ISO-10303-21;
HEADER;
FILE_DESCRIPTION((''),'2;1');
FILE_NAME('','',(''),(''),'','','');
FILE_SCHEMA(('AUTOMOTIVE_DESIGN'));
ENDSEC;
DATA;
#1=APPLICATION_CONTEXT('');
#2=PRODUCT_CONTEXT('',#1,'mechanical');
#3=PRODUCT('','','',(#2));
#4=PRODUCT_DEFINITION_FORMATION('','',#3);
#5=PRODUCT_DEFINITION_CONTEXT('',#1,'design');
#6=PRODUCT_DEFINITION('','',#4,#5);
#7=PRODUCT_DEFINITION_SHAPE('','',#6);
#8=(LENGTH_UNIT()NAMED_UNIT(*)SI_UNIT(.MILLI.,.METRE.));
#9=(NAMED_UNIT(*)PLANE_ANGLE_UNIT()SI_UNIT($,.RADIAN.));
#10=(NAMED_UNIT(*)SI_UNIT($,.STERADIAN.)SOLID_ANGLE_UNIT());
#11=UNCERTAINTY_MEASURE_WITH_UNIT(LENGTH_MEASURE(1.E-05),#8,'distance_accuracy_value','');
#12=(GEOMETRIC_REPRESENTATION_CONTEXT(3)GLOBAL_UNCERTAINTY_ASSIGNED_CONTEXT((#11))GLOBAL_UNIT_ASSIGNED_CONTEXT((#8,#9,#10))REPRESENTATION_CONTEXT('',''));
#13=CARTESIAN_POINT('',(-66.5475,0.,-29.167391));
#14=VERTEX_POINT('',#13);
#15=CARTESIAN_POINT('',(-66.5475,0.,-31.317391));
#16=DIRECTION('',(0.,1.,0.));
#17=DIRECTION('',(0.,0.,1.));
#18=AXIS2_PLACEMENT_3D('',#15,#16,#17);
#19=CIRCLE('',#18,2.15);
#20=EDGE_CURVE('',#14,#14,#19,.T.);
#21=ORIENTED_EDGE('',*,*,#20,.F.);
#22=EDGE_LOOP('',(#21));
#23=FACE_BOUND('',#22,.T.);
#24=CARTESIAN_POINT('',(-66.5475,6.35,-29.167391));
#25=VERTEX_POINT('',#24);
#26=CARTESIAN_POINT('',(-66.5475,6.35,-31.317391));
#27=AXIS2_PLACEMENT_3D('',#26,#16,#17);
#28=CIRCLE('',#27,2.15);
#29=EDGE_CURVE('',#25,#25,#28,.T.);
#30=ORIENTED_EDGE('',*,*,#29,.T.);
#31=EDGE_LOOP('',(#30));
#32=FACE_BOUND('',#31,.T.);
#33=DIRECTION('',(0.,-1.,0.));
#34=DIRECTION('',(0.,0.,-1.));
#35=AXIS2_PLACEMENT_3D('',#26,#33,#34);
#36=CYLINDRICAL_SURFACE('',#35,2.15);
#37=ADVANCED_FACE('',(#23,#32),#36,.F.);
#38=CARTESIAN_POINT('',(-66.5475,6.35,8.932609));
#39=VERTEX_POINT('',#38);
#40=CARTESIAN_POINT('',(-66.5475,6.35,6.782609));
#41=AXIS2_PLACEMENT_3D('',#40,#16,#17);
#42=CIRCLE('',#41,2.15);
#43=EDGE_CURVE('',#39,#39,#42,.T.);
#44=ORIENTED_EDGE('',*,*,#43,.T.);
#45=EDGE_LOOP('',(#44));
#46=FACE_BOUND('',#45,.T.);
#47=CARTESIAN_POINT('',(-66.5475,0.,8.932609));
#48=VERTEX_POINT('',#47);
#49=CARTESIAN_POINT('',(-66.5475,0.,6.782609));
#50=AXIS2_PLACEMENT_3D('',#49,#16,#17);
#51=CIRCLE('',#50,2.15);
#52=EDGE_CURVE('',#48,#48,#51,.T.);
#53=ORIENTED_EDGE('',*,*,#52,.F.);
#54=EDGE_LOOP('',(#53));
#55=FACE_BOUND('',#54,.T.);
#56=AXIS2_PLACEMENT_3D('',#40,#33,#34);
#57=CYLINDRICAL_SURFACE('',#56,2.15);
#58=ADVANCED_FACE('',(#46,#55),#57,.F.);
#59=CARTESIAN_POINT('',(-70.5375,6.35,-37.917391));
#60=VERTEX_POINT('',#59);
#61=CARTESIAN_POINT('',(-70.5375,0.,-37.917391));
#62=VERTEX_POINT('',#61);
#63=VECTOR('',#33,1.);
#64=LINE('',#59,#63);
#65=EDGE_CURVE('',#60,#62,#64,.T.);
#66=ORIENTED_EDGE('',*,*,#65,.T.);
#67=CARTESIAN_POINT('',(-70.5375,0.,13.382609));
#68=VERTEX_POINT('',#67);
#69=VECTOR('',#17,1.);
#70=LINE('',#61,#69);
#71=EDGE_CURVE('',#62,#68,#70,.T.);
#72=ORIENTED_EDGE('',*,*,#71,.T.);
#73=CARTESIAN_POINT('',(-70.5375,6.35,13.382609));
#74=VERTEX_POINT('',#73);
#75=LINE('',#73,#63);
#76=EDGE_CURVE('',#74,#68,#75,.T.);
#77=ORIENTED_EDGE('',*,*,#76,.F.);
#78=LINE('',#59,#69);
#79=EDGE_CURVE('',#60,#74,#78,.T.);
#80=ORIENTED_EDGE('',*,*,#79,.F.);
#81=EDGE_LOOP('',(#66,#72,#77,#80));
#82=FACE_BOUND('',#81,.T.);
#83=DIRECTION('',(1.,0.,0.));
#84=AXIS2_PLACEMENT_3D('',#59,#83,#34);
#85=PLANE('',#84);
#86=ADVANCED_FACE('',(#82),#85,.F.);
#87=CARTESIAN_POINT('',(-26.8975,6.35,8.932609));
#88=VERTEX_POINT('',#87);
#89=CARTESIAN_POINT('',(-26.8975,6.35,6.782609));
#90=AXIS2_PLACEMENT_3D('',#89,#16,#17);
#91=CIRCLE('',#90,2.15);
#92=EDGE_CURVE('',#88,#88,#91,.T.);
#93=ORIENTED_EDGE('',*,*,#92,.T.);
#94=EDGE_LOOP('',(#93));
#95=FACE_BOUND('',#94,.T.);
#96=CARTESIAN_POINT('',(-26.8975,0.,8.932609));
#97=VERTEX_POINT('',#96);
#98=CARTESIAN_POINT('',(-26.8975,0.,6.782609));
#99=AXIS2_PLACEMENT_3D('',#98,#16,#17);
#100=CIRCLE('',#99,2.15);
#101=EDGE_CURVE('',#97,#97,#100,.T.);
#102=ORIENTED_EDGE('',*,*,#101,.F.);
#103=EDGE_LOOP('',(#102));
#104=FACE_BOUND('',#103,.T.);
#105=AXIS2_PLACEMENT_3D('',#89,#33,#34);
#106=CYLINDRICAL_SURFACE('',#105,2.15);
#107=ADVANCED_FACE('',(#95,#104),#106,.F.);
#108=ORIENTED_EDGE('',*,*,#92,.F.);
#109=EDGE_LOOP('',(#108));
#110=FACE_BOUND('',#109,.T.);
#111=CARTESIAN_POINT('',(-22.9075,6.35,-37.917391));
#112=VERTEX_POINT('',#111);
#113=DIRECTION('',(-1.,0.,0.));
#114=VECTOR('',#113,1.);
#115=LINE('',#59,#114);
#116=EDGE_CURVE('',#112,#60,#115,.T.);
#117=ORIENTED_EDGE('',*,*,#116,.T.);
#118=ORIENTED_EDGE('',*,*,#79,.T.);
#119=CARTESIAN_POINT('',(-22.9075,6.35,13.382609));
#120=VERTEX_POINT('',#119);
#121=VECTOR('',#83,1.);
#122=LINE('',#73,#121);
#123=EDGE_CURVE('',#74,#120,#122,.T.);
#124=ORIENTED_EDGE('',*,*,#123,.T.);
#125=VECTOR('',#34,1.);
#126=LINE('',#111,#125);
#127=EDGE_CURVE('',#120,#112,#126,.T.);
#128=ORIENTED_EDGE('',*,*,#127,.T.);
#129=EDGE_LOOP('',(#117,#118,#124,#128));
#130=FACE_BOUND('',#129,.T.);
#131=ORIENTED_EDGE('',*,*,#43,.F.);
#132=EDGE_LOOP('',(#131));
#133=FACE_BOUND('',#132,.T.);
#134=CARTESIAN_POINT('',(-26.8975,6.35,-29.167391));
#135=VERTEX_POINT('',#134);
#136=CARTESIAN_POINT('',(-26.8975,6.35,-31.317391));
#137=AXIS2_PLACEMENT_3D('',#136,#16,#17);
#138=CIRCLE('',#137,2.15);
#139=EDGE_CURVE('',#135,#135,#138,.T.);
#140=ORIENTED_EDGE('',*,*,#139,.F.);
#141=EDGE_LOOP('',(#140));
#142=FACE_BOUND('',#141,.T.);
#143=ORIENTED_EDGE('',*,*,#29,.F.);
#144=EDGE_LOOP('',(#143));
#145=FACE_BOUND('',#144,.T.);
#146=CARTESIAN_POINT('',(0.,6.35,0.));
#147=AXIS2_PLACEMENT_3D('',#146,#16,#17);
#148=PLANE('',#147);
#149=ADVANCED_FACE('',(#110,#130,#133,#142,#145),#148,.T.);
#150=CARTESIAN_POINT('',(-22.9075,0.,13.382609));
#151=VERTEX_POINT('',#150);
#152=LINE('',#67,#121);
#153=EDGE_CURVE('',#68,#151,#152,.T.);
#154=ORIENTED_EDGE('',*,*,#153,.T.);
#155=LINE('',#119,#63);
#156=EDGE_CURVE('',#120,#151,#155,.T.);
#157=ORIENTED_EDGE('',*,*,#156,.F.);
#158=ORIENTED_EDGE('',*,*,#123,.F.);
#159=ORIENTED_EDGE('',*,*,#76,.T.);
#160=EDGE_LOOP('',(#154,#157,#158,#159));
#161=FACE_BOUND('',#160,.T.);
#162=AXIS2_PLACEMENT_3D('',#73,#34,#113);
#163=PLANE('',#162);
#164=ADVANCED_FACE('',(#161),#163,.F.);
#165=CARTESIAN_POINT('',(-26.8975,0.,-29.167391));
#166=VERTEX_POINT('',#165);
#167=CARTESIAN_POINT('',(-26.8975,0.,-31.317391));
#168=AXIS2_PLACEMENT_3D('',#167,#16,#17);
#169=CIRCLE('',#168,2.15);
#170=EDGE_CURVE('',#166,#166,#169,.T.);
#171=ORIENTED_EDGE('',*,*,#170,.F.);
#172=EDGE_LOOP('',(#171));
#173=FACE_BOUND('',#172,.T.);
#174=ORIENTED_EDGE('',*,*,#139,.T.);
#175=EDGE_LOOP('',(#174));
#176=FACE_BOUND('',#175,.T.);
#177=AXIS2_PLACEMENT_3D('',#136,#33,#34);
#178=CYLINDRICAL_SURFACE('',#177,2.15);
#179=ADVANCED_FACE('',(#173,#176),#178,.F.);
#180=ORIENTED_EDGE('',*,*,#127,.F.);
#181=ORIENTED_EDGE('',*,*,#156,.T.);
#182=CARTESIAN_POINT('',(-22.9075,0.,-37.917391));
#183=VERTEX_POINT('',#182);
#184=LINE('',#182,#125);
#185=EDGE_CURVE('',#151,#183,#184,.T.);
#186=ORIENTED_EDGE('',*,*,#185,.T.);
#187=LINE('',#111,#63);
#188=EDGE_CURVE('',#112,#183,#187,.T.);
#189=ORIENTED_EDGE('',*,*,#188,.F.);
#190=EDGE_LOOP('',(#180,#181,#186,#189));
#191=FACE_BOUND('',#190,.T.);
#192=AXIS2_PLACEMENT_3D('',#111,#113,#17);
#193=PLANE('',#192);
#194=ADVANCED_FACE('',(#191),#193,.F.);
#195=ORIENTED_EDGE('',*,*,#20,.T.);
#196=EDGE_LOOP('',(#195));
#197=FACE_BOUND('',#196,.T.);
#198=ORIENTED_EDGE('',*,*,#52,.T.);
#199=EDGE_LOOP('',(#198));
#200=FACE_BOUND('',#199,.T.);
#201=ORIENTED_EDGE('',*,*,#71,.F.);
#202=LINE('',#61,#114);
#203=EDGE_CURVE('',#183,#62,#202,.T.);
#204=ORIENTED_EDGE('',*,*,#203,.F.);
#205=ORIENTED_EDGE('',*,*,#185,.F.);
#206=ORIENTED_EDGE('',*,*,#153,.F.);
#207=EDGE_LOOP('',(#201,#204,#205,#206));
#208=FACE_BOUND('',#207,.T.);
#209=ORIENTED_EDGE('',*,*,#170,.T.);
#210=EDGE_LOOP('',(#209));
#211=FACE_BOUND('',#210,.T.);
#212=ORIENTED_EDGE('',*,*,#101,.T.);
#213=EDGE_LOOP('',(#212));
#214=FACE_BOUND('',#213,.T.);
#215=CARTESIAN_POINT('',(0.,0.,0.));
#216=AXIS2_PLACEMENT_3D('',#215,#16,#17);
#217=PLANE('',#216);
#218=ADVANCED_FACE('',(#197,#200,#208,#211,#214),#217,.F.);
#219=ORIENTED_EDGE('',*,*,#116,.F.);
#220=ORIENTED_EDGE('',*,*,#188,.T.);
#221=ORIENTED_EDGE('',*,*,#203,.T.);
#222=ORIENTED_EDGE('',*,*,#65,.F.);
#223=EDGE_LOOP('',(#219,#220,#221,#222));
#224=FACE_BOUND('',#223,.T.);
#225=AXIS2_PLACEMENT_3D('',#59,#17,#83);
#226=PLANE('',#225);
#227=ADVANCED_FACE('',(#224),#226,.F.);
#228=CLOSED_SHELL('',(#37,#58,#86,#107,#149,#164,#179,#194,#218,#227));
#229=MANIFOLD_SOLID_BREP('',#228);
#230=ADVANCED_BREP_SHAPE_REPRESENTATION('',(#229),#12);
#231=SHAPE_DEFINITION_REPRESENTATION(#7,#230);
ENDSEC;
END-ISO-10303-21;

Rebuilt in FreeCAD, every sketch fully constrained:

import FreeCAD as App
import Part
import Sketcher


def add_polygon(sketch, points):
    """Adds a closed chain of lines whose ends are joined by coincident constraints."""
    first, n = sketch.GeometryCount, len(points)
    for a, b in zip(points, points[1:] + points[:1]):
        sketch.addGeometry(Part.LineSegment(App.Vector(*a, 0), App.Vector(*b, 0)), False)
    for i in range(n):
        sketch.addConstraint(Sketcher.Constraint("Coincident", first + i, 2, first + (i + 1) % n, 1))

doc = App.newDocument("Part")
body = doc.addObject("PartDesign::Body", "Body")

sketch1 = body.newObject("Sketcher::SketchObject", "Sketch")
sketch1.AttachmentSupport = (doc.getObject("XZ_Plane"), [""])
sketch1.MapMode = "FlatFace"
add_polygon(sketch1, [(-70.5375, -37.917391), (-70.5375, 13.382609), (-22.9075, 13.382609), (-22.9075, -37.917391)])
sketch1.addGeometry(Part.Circle(App.Vector(-66.5475, 6.782609, 0), App.Vector(0, 0, 1), 2.15), False)
sketch1.addGeometry(Part.Circle(App.Vector(-26.8975, 6.782609, 0), App.Vector(0, 0, 1), 2.15), False)
sketch1.addGeometry(Part.Circle(App.Vector(-66.5475, -31.317391, 0), App.Vector(0, 0, 1), 2.15), False)
sketch1.addGeometry(Part.Circle(App.Vector(-26.8975, -31.317391, 0), App.Vector(0, 0, 1), 2.15), False)
sketch1.addConstraint(Sketcher.Constraint("Vertical", 0))
sketch1.addConstraint(Sketcher.Constraint("Horizontal", 1))
sketch1.addConstraint(Sketcher.Constraint("Vertical", 2))
sketch1.addConstraint(Sketcher.Constraint("Horizontal", 3))
sketch1.addConstraint(Sketcher.Constraint("Equal", 4, 5))
sketch1.addConstraint(Sketcher.Constraint("Equal", 5, 6))
sketch1.addConstraint(Sketcher.Constraint("Equal", 6, 7))
sketch1.addConstraint(Sketcher.Constraint("Horizontal", 4, 3, 5, 3))
sketch1.addConstraint(Sketcher.Constraint("Horizontal", 6, 3, 7, 3))
sketch1.addConstraint(Sketcher.Constraint("Vertical", 4, 3, 6, 3))
sketch1.addConstraint(Sketcher.Constraint("Vertical", 5, 3, 7, 3))
sketch1.addConstraint(Sketcher.Constraint("Diameter", 4, 4.3))
sketch1.addConstraint(Sketcher.Constraint("DistanceY", 0, 1, 0, 2, 51.3))
sketch1.addConstraint(Sketcher.Constraint("DistanceX", 1, 1, 1, 2, 47.63))
sketch1.addConstraint(Sketcher.Constraint("DistanceY", 6, 3, 4, 3, 38.1))
sketch1.addConstraint(Sketcher.Constraint("DistanceY", 4, 3, 0, 2, 6.6))
sketch1.addConstraint(Sketcher.Constraint("DistanceX", 4, 3, 5, 3, 39.65))
sketch1.addConstraint(Sketcher.Constraint("DistanceX", 0, 2, 4, 3, 3.99))
sketch1.addConstraint(Sketcher.Constraint("DistanceX", 4, 3, -1, 1, 66.5475))
sketch1.addConstraint(Sketcher.Constraint("DistanceY", -1, 1, 4, 3, 6.782609))
pad1 = body.newObject("PartDesign::Pad", "Pad")
pad1.Profile = sketch1
pad1.Length = 6.35
pad1.Reversed = True

doc.recompute()
